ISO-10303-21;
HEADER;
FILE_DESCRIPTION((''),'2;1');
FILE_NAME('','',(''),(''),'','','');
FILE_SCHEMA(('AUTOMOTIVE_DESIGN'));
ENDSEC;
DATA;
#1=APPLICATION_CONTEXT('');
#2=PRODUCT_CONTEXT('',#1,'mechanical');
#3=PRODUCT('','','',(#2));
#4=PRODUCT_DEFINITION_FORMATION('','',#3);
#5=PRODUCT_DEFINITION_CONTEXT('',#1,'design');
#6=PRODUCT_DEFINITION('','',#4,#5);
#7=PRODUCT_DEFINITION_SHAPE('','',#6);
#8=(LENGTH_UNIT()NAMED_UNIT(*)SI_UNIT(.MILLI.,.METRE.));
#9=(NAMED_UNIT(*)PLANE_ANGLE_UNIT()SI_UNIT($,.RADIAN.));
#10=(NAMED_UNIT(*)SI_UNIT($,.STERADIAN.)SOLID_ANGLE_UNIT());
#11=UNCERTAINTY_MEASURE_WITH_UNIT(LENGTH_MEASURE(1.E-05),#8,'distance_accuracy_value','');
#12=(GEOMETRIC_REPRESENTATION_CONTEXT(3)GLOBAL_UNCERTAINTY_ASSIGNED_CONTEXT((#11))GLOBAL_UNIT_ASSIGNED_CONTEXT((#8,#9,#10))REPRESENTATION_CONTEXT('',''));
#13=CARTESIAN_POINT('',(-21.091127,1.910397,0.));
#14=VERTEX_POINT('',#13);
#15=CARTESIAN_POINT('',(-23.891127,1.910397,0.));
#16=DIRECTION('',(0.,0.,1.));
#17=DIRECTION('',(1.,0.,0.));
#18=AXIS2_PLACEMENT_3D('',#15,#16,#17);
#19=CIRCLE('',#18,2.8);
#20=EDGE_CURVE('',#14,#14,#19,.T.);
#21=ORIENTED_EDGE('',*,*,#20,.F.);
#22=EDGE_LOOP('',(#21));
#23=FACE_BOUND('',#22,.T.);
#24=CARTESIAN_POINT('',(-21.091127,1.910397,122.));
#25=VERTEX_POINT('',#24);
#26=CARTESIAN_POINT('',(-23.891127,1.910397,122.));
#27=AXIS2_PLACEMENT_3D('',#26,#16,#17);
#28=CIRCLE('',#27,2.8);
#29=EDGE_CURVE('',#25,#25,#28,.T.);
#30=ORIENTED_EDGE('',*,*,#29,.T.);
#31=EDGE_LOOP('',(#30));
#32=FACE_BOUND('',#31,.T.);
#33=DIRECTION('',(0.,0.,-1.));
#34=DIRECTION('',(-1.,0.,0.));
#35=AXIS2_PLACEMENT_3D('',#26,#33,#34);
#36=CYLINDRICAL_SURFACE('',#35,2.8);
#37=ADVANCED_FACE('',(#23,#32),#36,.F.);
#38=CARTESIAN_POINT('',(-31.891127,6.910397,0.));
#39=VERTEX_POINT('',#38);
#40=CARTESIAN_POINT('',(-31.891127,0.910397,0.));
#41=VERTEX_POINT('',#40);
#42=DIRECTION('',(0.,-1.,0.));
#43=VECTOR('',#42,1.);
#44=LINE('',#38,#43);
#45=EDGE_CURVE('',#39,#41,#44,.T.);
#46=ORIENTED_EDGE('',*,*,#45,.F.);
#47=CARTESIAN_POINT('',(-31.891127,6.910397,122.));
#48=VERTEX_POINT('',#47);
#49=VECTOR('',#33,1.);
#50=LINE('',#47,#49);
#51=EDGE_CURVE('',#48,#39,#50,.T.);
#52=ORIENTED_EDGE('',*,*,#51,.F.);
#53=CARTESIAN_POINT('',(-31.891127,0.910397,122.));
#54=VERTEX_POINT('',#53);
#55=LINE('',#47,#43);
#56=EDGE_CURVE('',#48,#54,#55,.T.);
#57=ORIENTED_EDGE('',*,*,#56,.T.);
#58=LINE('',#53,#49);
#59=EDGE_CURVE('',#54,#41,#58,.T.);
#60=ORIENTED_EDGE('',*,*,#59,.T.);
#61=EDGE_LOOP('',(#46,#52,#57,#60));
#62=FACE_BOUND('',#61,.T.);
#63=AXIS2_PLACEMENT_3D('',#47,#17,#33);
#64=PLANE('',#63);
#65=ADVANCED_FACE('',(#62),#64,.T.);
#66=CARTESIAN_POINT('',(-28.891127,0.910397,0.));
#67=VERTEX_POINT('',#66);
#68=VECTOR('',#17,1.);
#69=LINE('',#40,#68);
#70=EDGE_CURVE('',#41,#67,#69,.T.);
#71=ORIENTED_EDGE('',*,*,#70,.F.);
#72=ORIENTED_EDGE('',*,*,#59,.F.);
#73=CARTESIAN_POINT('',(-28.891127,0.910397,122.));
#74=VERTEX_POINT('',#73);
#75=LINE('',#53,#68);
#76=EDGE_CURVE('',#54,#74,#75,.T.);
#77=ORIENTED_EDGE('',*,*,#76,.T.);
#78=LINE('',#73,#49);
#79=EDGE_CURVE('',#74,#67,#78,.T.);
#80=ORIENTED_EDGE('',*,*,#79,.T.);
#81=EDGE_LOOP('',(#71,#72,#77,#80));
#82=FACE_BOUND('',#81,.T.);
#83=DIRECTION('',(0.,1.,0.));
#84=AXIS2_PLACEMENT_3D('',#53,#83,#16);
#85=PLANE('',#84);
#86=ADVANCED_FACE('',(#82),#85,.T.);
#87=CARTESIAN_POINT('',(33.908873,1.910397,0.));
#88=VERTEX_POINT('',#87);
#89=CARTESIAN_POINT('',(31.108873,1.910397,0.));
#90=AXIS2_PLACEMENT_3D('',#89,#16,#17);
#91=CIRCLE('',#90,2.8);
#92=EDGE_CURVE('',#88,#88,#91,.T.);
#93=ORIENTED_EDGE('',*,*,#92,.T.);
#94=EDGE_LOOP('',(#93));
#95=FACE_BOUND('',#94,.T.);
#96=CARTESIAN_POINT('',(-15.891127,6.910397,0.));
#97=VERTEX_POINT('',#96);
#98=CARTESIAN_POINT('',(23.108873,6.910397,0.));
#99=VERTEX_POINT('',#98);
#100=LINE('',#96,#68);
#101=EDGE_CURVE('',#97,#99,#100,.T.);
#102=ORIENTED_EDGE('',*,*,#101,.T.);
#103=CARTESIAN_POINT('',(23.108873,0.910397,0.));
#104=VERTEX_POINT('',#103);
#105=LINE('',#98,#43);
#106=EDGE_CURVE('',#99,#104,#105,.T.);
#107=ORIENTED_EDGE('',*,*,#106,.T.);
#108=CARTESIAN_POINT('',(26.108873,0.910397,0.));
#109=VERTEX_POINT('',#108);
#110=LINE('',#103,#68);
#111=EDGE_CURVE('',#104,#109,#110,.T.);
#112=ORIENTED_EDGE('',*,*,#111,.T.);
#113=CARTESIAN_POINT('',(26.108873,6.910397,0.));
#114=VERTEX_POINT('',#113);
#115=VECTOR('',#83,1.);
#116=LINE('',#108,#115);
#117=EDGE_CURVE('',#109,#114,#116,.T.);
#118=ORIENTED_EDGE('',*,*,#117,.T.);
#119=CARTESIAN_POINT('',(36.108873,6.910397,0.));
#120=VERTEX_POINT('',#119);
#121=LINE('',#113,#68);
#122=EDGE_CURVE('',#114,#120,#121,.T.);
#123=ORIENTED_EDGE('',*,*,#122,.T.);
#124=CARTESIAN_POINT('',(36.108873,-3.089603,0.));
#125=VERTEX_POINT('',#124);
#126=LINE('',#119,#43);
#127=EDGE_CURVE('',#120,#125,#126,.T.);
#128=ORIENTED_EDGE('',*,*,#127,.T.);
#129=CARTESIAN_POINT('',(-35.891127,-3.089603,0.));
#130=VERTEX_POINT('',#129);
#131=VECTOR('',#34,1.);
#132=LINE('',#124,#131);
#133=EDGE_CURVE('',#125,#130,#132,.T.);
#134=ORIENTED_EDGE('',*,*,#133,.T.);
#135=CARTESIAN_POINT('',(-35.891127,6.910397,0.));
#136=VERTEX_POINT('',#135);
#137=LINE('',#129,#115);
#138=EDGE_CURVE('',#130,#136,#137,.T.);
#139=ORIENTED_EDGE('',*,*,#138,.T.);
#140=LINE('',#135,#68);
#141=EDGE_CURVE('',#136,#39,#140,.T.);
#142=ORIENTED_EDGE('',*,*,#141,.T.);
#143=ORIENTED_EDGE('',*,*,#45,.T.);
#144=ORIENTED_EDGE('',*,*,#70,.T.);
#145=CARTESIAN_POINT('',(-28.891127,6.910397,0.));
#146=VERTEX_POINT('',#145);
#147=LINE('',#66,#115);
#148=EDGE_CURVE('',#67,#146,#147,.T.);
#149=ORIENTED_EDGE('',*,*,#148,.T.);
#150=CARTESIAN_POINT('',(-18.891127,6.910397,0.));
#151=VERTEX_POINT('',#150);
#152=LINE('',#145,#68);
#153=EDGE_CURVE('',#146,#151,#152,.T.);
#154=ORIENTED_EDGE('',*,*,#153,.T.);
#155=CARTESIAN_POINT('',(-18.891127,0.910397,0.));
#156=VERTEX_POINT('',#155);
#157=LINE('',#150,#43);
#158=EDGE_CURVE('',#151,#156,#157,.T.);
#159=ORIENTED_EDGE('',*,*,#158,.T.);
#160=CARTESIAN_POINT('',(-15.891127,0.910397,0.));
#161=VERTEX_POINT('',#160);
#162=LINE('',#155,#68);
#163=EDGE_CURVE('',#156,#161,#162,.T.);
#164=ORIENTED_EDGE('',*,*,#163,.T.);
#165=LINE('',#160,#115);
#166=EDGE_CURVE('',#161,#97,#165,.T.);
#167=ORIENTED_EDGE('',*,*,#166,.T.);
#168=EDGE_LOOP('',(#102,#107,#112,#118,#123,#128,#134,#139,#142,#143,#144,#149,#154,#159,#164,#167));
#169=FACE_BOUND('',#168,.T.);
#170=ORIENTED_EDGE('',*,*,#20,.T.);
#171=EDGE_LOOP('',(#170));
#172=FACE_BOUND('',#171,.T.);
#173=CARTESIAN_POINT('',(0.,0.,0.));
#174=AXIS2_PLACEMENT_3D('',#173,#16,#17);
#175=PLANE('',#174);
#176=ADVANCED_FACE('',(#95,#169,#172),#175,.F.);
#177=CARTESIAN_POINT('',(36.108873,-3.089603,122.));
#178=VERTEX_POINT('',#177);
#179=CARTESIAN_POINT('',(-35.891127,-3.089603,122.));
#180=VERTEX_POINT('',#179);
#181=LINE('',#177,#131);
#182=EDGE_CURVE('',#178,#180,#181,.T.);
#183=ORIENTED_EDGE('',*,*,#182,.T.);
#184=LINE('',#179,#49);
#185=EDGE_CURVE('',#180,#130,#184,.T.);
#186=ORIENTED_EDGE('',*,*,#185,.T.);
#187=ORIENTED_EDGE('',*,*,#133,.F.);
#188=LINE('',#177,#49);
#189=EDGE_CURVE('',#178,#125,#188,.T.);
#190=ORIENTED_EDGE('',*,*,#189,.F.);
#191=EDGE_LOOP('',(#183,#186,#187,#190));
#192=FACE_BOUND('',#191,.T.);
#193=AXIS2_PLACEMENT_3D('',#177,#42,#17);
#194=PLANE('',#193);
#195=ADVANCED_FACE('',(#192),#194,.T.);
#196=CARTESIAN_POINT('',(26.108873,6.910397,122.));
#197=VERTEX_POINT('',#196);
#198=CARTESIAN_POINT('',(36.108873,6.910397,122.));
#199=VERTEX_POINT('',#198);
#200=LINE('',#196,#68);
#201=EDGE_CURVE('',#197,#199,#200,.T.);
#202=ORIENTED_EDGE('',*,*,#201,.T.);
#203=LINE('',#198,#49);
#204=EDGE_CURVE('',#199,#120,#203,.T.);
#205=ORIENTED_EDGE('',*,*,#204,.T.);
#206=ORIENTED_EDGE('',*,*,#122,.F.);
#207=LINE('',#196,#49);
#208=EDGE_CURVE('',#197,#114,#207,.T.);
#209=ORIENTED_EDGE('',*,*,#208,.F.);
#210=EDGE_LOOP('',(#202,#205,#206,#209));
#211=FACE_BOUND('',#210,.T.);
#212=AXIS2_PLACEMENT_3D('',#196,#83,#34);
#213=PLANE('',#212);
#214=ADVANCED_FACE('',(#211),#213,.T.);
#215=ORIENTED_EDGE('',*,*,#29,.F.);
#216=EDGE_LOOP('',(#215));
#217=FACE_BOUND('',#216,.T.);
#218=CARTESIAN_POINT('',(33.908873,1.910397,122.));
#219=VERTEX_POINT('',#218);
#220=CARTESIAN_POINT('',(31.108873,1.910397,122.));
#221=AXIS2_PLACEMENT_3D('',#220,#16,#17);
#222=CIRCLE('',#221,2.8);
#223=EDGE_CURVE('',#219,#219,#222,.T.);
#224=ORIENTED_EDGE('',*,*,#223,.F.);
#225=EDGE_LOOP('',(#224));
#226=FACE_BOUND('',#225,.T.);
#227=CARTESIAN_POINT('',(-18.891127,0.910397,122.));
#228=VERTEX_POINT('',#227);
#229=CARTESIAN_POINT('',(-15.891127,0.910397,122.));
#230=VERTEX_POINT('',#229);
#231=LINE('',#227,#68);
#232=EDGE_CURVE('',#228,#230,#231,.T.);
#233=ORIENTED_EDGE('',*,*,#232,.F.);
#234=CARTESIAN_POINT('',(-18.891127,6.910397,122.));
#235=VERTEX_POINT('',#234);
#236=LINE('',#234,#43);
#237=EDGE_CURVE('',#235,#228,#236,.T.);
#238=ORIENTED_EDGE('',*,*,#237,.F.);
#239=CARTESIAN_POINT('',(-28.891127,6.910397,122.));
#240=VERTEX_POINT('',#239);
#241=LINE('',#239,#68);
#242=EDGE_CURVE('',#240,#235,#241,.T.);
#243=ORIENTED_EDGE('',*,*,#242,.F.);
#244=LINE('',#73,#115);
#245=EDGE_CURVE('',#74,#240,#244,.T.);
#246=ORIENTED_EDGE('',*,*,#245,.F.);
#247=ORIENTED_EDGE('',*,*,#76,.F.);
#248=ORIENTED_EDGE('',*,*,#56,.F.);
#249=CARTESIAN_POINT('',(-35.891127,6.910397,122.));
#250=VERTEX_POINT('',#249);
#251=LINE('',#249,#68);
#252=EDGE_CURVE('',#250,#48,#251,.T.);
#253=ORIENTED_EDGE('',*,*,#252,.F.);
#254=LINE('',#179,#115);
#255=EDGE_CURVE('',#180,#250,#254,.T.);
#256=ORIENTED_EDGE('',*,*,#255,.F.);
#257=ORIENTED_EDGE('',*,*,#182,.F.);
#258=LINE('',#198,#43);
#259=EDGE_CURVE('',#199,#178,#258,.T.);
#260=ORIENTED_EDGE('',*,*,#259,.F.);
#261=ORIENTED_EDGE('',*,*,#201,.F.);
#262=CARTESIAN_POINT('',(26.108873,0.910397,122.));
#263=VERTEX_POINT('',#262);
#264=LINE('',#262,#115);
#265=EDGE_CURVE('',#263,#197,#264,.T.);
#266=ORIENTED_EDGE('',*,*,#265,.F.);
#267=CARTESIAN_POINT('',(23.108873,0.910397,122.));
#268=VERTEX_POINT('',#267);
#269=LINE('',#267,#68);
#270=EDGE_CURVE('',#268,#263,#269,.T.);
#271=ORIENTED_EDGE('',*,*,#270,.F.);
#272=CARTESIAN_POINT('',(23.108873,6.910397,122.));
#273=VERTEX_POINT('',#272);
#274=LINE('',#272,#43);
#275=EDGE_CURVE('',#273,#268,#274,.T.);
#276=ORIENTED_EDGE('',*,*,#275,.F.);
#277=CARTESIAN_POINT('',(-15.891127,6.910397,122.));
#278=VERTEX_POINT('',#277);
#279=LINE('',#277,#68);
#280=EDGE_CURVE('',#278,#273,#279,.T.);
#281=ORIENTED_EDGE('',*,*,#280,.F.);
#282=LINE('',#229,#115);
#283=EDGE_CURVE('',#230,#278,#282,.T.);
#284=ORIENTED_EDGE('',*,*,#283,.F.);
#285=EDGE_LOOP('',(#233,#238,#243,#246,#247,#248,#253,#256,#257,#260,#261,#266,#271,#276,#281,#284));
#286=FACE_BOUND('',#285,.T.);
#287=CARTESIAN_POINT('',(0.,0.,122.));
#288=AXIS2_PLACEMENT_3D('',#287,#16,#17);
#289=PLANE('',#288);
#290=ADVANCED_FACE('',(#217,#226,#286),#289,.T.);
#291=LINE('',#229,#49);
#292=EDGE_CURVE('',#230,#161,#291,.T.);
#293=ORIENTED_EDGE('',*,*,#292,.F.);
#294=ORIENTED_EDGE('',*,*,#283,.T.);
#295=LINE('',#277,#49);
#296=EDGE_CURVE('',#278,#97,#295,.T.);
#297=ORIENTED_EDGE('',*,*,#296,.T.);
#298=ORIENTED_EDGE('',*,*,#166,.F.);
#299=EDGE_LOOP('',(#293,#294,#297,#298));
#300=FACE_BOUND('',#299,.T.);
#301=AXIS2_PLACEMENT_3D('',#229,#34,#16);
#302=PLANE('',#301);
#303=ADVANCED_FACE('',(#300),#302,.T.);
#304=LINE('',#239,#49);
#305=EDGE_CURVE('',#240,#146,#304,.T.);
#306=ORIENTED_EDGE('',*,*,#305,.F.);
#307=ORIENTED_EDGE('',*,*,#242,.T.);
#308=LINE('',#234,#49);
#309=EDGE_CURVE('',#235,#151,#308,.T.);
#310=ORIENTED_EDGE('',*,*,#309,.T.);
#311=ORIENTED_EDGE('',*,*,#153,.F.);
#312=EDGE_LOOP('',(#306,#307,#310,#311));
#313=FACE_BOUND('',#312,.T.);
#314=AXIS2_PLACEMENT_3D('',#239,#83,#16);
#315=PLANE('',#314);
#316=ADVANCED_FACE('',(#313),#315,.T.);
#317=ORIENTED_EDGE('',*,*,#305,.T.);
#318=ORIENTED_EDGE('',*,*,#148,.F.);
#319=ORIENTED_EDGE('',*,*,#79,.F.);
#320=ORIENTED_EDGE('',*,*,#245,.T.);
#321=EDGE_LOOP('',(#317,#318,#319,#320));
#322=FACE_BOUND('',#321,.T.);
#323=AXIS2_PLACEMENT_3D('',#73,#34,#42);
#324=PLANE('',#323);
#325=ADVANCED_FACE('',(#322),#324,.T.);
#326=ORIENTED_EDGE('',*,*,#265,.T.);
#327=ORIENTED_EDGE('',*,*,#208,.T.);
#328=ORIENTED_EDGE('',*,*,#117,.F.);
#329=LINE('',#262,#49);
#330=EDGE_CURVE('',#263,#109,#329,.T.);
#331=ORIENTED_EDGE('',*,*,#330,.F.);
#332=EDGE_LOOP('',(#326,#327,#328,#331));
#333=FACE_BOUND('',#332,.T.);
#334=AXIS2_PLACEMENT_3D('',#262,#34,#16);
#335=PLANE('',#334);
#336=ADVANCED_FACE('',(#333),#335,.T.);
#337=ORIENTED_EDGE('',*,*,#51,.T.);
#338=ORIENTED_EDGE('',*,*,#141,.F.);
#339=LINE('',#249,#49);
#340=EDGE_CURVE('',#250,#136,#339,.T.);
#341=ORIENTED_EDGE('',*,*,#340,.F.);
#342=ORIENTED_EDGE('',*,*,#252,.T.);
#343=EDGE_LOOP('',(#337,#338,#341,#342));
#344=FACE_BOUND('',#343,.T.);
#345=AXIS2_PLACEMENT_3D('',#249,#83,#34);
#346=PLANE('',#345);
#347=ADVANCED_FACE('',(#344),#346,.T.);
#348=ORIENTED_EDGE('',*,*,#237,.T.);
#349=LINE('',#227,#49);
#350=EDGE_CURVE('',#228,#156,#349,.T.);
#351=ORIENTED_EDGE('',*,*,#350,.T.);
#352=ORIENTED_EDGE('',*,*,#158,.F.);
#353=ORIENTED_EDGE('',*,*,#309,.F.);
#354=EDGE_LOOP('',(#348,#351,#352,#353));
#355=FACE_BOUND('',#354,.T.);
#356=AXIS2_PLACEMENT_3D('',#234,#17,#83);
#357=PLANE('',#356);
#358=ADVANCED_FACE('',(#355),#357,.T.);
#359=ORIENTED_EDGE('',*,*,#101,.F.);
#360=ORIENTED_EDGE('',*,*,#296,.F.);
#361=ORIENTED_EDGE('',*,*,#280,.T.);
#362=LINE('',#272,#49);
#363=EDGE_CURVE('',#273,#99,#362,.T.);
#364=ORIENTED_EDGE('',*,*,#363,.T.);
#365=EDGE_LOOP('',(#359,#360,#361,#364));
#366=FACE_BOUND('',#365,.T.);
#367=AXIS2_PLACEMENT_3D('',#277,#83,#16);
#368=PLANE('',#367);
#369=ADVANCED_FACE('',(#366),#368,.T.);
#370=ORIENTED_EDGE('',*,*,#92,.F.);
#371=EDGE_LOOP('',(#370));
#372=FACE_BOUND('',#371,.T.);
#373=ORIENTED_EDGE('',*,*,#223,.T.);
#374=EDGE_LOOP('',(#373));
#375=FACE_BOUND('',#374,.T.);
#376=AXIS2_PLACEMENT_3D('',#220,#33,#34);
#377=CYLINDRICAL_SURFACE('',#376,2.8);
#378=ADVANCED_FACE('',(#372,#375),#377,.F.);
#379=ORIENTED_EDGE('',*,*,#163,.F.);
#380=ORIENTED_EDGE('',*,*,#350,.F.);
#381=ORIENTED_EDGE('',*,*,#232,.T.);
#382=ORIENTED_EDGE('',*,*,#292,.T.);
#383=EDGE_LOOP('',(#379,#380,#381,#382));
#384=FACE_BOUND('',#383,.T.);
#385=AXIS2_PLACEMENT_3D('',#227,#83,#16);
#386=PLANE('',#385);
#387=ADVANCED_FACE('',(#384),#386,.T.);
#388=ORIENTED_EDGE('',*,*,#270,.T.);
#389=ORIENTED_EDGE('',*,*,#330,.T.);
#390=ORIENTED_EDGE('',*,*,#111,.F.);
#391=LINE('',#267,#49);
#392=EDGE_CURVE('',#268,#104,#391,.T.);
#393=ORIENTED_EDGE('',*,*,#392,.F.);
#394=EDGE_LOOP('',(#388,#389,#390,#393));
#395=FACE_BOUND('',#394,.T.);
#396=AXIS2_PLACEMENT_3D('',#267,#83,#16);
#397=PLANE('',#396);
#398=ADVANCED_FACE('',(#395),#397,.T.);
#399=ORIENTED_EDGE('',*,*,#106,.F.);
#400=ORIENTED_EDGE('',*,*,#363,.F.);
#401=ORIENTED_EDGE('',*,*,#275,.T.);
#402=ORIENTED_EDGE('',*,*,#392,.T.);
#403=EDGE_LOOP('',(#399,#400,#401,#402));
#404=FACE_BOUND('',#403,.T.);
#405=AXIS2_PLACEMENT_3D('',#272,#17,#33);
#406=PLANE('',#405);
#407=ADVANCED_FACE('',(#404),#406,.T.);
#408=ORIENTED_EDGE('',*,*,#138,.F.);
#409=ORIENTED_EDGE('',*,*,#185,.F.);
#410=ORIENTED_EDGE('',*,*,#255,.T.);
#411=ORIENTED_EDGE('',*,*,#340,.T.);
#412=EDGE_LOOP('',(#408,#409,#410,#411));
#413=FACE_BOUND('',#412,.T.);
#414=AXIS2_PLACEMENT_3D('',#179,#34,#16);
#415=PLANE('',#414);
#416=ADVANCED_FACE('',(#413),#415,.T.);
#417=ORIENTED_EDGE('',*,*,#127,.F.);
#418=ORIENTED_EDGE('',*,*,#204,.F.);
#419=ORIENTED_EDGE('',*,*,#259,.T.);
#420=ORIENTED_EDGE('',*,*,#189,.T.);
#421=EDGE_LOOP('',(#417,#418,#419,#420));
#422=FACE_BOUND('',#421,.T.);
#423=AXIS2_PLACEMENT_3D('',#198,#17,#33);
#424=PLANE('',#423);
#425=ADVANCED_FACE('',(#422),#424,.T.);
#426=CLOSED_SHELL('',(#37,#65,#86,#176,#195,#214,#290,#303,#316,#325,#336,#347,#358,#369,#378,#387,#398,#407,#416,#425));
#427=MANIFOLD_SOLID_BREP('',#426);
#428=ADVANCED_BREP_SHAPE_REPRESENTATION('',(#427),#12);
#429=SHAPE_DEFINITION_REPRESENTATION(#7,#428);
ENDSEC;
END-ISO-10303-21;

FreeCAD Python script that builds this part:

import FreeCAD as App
import Part
import Sketcher
from FreeCAD import Vector
Q = App.Units.Quantity


def add_polygon(sketch, points):
    """Adds a closed chain of lines whose ends are joined by coincident constraints."""
    first, n = sketch.GeometryCount, len(points)
    for a, b in zip(points, points[1:] + points[:1]):
        sketch.addGeometry(Part.LineSegment(App.Vector(*a, 0), App.Vector(*b, 0)), False)
    for i in range(n):
        sketch.addConstraint(Sketcher.Constraint("Coincident", first + i, 2, first + (i + 1) % n, 1))

doc = App.newDocument("Part")
params = doc.addObject("Spreadsheet::Sheet", "Params")
for row, (alias, value) in enumerate([
    ("sketch1_diameter", "5.6 mm"),
    ("sketch1_width", "72 mm"),
    ("sketch1_width2", "10 mm"),
    ("sketch1_width3", "3 mm"),
    ("sketch1_width4", "39 mm"),
    ("pad1_length", "122 mm"),
], start=1):
    params.set(f"A{row}", alias)
    params.set(f"B{row}", "=" + value)
    params.setAlias(f"B{row}", alias)

body = doc.addObject("PartDesign::Body", "Body")

# Sketch on XY plane
sketch1 = body.newObject("Sketcher::SketchObject", "Sketch")
sketch1.AttachmentSupport = (doc.getObject("XY_Plane"), [""])
sketch1.MapMode = "FlatFace"
add_polygon(sketch1, [(-35.9, 6.9), (-35.9, -3.1), (36.1, -3.1), (36.1, 6.9), (26.1, 6.9), (26.1, 0.9), (23.1, 0.9), (23.1, 6.9), (-15.9, 6.9), (-15.9, 0.9), (-18.9, 0.9), (-18.9, 6.9), (-28.9, 6.9), (-28.9, 0.9), (-31.9, 0.9), (-31.9, 6.9)])  # lines 0-15
sketch1.addGeometry(Part.Circle(Vector(31.1, 1.9, 0), Vector(0, 0, 1), 2.8), False)  # 16
sketch1.addGeometry(Part.Circle(Vector(-23.9, 1.9, 0), Vector(0, 0, 1), 2.8), False)  # 17
sketch1.addConstraint([
    Sketcher.Constraint("Vertical", 0),
    Sketcher.Constraint("Horizontal", 1),
    Sketcher.Constraint("Vertical", 2),
    Sketcher.Constraint("Horizontal", 3),
    Sketcher.Constraint("Vertical", 4),
    Sketcher.Constraint("Horizontal", 5),
    Sketcher.Constraint("Vertical", 6),
    Sketcher.Constraint("Horizontal", 7),
    Sketcher.Constraint("Vertical", 8),
    Sketcher.Constraint("Horizontal", 9),
    Sketcher.Constraint("Vertical", 10),
    Sketcher.Constraint("Horizontal", 11),
    Sketcher.Constraint("Vertical", 12),
    Sketcher.Constraint("Horizontal", 13),
    Sketcher.Constraint("Vertical", 14),
    Sketcher.Constraint("Horizontal", 15),
    Sketcher.Constraint("Equal", 16, 17),
    Sketcher.Constraint("Horizontal", 16, 3, 17, 3),
    Sketcher.Constraint("Horizontal", 3, 2, 6, 2),
    Sketcher.Constraint("Horizontal", 5, 2, 8, 2),
    Sketcher.Constraint("Horizontal", 7, 2, 10, 2),
    Sketcher.Constraint("Horizontal", 9, 2, 12, 2),
    Sketcher.Constraint("Horizontal", 11, 2, 14, 2),
    Sketcher.Constraint("Equal", 5, 9),
    Sketcher.Constraint("Equal", 3, 11),
    Sketcher.Constraint("Equal", 9, 13),
    Sketcher.Constraint("Equal", 11, 0),
    Sketcher.Constraint("Diameter", 16, Q("5.6 mm")),
    Sketcher.Constraint("DistanceX", 1, 1, 1, 2, Q("72 mm")),
    Sketcher.Constraint("DistanceX", 3, 2, 3, 1, Q("10 mm")),
    Sketcher.Constraint("DistanceX", 5, 2, 5, 1, Q("3 mm")),
    Sketcher.Constraint("DistanceX", 7, 2, 7, 1, Q("39 mm")),
    Sketcher.Constraint("DistanceY", 4, 2, 4, 1, Q("6 mm")),
    Sketcher.Constraint("DistanceX", 17, 3, 16, 3, Q("55 mm")),
    Sketcher.Constraint("DistanceX", 0, 2, 17, 3, Q("12 mm")),
    Sketcher.Constraint("DistanceY", 0, 2, 17, 3, Q("5 mm")),
    Sketcher.Constraint("DistanceX", -1, 1, 16, 3, Q("31.108873 mm")),
    Sketcher.Constraint("DistanceY", -1, 1, 16, 3, Q("1.910397 mm")),
])
sketch1.setExpression("Constraints[43]", "Params.sketch1_diameter")
sketch1.setExpression("Constraints[44]", "Params.sketch1_width")
sketch1.setExpression("Constraints[45]", "Params.sketch1_width2")
sketch1.setExpression("Constraints[46]", "Params.sketch1_width3")
sketch1.setExpression("Constraints[47]", "Params.sketch1_width4")
pad1 = body.newObject("PartDesign::Pad", "Pad")
pad1.Profile = sketch1
pad1.setExpression("Length", "Params.pad1_length")

doc.recompute()
